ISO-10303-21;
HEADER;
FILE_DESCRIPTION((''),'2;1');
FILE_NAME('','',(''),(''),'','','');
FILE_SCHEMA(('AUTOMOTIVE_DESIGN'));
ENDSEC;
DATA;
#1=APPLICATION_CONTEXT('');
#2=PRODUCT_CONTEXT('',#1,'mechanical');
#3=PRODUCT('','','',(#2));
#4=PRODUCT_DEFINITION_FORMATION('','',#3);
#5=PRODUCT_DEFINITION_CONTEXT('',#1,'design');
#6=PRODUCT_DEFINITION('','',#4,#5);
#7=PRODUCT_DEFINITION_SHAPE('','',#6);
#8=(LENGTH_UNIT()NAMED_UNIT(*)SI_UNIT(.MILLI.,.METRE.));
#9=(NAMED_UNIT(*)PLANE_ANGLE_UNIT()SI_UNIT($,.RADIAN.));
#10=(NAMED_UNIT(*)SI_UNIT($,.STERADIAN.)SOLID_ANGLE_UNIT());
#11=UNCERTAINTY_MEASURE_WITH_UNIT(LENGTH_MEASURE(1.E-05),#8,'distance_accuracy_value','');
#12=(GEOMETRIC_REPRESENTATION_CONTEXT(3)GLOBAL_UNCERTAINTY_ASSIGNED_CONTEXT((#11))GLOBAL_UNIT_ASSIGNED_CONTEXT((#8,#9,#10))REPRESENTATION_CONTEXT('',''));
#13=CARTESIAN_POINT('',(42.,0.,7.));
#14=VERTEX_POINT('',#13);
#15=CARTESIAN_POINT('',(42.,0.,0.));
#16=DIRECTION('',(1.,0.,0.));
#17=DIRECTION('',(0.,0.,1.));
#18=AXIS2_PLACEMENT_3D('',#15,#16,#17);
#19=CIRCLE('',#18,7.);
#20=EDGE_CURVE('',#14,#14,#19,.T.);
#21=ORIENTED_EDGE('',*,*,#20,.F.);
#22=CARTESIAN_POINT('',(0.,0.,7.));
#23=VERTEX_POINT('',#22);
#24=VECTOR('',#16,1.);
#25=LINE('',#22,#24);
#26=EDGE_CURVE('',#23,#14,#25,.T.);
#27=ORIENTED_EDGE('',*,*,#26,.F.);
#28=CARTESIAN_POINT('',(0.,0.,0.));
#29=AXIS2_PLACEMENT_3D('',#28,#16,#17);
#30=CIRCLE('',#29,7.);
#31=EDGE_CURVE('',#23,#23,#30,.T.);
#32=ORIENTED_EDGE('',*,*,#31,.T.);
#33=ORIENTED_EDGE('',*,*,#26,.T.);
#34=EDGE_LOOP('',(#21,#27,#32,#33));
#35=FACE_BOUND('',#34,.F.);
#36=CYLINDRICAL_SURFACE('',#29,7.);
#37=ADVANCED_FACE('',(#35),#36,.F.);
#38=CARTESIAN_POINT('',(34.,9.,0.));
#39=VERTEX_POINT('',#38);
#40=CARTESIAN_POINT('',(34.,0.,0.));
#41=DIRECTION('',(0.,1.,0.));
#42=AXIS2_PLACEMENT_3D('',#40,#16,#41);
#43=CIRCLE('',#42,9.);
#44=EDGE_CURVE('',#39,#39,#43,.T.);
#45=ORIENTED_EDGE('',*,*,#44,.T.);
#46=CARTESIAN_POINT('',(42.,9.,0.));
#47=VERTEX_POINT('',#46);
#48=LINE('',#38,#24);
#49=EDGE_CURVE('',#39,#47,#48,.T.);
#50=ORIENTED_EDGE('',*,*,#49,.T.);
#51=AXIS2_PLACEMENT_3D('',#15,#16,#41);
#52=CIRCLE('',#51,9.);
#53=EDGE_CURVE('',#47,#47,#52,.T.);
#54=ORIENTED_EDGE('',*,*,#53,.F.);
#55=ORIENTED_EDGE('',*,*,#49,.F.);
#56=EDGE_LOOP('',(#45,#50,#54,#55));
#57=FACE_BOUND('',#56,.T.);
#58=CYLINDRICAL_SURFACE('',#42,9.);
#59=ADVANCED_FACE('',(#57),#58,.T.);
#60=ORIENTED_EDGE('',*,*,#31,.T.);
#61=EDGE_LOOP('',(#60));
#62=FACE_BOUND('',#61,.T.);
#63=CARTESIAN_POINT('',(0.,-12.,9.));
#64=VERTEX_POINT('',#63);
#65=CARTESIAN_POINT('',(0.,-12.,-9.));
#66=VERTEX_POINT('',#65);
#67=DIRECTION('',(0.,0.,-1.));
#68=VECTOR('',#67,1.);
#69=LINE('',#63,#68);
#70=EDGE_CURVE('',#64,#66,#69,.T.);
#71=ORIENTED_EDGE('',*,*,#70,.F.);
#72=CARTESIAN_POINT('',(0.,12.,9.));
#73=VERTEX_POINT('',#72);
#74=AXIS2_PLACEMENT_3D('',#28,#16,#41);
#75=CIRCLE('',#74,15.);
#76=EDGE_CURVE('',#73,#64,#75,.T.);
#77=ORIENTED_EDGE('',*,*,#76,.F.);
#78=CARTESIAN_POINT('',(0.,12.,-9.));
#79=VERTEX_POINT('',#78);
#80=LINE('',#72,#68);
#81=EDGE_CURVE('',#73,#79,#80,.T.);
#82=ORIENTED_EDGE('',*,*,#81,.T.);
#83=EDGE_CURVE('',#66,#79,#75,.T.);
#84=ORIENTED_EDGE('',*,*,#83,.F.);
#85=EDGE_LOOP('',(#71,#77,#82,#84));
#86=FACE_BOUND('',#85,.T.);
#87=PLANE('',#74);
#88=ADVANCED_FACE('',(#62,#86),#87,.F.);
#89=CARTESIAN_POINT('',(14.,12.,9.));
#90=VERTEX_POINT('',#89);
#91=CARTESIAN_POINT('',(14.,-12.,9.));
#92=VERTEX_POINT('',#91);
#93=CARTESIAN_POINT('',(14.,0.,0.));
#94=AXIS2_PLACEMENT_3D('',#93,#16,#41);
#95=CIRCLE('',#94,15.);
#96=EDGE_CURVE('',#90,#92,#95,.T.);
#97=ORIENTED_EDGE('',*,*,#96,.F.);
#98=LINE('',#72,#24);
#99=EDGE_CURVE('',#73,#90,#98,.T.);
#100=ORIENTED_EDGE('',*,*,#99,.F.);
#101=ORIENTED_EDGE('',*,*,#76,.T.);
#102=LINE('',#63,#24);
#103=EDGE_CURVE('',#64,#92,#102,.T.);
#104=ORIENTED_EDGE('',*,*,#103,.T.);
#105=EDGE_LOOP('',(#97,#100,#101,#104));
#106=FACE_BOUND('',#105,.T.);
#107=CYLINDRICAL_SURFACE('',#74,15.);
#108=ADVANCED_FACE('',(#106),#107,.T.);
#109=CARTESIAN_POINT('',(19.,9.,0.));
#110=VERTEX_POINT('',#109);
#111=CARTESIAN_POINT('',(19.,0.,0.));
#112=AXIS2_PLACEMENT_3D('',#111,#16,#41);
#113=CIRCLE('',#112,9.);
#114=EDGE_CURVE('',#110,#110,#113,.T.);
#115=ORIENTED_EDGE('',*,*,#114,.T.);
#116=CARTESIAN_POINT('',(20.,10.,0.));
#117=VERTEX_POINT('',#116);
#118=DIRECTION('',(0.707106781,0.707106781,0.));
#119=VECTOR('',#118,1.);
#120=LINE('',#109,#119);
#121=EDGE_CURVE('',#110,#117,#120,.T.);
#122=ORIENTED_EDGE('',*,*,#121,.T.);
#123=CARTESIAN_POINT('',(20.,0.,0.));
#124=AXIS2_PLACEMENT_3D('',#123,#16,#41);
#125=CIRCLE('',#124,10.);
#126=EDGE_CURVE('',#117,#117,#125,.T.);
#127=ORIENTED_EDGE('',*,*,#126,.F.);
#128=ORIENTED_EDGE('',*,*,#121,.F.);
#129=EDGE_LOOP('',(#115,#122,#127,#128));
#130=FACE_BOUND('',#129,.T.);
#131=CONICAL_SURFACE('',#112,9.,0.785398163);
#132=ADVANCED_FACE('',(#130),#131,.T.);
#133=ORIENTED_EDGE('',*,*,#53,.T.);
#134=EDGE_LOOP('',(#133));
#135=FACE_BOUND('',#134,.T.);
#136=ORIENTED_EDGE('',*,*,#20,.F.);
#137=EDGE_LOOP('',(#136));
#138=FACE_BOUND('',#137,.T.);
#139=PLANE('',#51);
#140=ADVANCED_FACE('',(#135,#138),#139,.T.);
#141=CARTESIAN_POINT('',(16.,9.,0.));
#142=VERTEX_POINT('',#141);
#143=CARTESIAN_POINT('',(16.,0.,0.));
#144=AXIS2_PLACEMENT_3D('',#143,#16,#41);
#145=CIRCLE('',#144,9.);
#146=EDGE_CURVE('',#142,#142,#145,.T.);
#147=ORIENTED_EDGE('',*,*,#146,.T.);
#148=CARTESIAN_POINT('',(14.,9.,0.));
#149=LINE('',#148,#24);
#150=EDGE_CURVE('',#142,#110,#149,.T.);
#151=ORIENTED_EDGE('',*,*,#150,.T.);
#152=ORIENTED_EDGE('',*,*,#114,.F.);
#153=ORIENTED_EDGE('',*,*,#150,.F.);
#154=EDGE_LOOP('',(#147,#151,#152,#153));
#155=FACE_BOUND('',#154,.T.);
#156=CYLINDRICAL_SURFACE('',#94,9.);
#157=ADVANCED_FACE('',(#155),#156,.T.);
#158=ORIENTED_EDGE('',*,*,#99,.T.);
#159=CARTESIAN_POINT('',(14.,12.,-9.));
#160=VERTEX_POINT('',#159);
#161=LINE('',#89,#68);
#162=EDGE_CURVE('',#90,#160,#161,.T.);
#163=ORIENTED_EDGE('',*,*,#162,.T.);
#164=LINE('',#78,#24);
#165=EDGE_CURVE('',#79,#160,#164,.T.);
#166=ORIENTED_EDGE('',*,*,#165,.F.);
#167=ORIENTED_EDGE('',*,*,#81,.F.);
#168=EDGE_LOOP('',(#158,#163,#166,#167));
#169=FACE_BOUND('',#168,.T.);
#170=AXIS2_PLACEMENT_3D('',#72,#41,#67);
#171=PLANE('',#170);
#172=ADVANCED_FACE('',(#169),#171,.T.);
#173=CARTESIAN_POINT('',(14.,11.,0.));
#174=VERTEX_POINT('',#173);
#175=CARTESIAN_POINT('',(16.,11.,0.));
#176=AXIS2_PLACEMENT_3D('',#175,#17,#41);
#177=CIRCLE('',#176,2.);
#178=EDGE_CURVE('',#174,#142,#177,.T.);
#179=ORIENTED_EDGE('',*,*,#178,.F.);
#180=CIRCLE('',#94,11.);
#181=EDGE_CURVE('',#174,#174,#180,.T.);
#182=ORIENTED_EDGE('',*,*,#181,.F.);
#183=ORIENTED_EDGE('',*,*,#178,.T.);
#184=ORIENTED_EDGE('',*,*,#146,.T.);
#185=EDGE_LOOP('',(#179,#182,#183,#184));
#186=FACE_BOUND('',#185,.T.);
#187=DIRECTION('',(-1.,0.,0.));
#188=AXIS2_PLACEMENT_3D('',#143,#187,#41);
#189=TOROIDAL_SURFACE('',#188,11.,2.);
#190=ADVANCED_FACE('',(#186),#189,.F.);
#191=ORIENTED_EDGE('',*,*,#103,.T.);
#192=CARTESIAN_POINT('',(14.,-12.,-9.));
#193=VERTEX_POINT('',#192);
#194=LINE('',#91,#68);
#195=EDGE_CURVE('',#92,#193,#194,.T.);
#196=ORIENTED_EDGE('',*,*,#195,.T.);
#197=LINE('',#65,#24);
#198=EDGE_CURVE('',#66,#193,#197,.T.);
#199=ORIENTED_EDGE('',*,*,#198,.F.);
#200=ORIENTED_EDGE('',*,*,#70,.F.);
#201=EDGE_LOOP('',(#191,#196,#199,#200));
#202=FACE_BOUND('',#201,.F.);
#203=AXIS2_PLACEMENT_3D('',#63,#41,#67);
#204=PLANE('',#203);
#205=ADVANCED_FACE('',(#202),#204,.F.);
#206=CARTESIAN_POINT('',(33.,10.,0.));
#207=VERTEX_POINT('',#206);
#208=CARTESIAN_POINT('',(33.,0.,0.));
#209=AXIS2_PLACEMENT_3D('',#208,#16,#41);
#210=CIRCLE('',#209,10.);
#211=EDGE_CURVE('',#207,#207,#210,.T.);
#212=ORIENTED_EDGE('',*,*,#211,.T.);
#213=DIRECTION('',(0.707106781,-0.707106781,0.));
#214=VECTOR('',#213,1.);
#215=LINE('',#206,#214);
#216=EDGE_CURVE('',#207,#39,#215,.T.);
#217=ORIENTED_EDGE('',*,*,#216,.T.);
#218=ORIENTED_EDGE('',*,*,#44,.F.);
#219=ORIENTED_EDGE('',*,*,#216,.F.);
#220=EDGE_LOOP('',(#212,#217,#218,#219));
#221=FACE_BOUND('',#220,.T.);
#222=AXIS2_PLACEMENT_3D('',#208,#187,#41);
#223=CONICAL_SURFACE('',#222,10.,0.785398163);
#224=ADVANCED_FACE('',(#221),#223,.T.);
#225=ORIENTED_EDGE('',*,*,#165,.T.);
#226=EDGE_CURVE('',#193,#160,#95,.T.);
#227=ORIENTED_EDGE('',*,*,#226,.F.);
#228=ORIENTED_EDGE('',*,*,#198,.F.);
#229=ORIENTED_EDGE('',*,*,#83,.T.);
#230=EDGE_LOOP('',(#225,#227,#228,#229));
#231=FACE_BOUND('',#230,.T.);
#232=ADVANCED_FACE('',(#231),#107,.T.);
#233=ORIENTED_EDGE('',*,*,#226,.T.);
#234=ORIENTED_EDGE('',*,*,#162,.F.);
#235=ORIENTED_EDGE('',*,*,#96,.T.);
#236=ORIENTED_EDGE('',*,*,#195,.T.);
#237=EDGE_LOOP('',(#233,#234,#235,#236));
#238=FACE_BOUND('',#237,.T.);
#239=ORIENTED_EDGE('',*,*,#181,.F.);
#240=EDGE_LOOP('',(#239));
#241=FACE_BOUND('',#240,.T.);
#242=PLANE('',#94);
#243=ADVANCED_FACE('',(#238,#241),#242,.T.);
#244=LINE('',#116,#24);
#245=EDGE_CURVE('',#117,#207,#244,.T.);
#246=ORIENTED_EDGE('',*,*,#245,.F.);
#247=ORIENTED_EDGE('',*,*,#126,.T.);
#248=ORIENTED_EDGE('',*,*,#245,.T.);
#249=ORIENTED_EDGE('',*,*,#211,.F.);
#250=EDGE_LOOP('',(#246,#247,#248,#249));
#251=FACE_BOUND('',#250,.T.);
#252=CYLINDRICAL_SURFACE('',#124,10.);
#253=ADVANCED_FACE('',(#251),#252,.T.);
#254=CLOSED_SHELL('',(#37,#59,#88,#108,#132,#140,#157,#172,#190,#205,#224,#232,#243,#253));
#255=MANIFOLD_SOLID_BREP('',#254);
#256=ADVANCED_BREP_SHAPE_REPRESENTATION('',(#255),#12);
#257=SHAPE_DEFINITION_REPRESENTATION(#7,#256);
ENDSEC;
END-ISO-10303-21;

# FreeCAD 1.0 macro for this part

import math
import FreeCAD as App
import Part
import Sketcher
Q = App.Units.Quantity


def edges_at(feature, points):
    """Names of the edges that pass closest to the given points."""
    edges = feature.Shape.Edges
    near = lambda p: min(range(len(edges)), key=lambda i: edges[i].distToShape(Part.Vertex(*p))[0])
    return sorted({f"Edge{near(p) + 1}" for p in points})


def add_polygon(sketch, points):
    """Adds a closed chain of lines whose ends are joined by coincident constraints."""
    first, n = sketch.GeometryCount, len(points)
    for a, b in zip(points, points[1:] + points[:1]):
        sketch.addGeometry(Part.LineSegment(App.Vector(*a, 0), App.Vector(*b, 0)), False)
    for i in range(n):
        sketch.addConstraint(Sketcher.Constraint("Coincident", first + i, 2, first + (i + 1) % n, 1))

doc = App.newDocument("Part")
body = doc.addObject("PartDesign::Body", "Body")

sketch1 = body.newObject("Sketcher::SketchObject", "Sketch")
sketch1.AttachmentSupport = (doc.getObject("XY_Plane"), [""])
sketch1.MapMode = "FlatFace"
add_polygon(sketch1, [(0, 15), (0, 0), (42, 0), (42, 9), (34, 9), (33, 10), (20, 10), (19, 9), (14, 9), (14, 15)])
sketch1.addConstraint(Sketcher.Constraint("Vertical", 0))
sketch1.addConstraint(Sketcher.Constraint("Horizontal", 1))
sketch1.addConstraint(Sketcher.Constraint("Vertical", 2))
sketch1.addConstraint(Sketcher.Constraint("Horizontal", 3))
sketch1.addConstraint(Sketcher.Constraint("Horizontal", 5))
sketch1.addConstraint(Sketcher.Constraint("Horizontal", 7))
sketch1.addConstraint(Sketcher.Constraint("Vertical", 8))
sketch1.addConstraint(Sketcher.Constraint("Horizontal", 9))
sketch1.addConstraint(Sketcher.Constraint("Coincident", 0, 2, -1, 1))
sketch1.addConstraint(Sketcher.Constraint("Perpendicular", 4, 6))
sketch1.addConstraint(Sketcher.Constraint("Horizontal", 3, 2, 6, 2))
sketch1.addConstraint(Sketcher.Constraint("Equal", 4, 6))
sketch1.addConstraint(Sketcher.Constraint("DistanceX", 1, 1, 1, 2, Q("42 mm")))
sketch1.addConstraint(Sketcher.Constraint("DistanceX", 3, 2, 3, 1, Q("8 mm")))
sketch1.addConstraint(Sketcher.Constraint("DistanceX", 7, 2, 7, 1, Q("5 mm")))
sketch1.addConstraint(Sketcher.Constraint("DistanceX", -1, 1, 5, 2, Q("20 mm")))
sketch1.addConstraint(Sketcher.Constraint("DistanceX", 7, 2, 3, 2, Q("20 mm")))
sketch1.addConstraint(Sketcher.Constraint("DistanceY", 5, 2, 8, 2, Q("5 mm")))
sketch1.addConstraint(Sketcher.Constraint("DistanceY", 0, 2, 0, 1, Q("15 mm")))
revolution = body.newObject("PartDesign::Revolution", "Revolution")
revolution.Profile = sketch1
revolution.ReferenceAxis = (sketch1, ["H_Axis"])
revolution.Angle = 360

sketch2 = body.newObject("Sketcher::SketchObject", "Sketch001")
sketch2.AttachmentSupport = (doc.getObject("YZ_Plane"), [""])
sketch2.MapMode = "FlatFace"
sketch2.addGeometry(Part.Circle(App.Vector(0, 0, 0), App.Vector(0, 0, 1), 7), False)
sketch2.addConstraint(Sketcher.Constraint("Coincident", 0, 3, -1, 1))
sketch2.addConstraint(Sketcher.Constraint("Diameter", 0, Q("14 mm")))
doc.recompute()
hole = body.newObject("PartDesign::Hole", "Hole")
hole.Profile = sketch2
hole.ThreadType = "None"
hole.Diameter = 14
hole.DepthType = "Dimension"
hole.Depth = 42
hole.DrillPoint = "Flat"
hole.Reversed = True

sketch3 = body.newObject("Sketcher::SketchObject", "Sketch002")
sketch3.AttachmentSupport = (doc.getObject("YZ_Plane"), [""])
sketch3.MapMode = "FlatFace"
sketch3.addGeometry(Part.LineSegment(App.Vector(12, -9, 0), App.Vector(12, 9, 0)), False)
sketch3.addGeometry(Part.ArcOfCircle(Part.Circle(App.Vector(0, 0, 0), App.Vector(0, 0, 1), 15), math.radians(-37), math.radians(37)), False)
sketch3.addGeometry(Part.ArcOfCircle(Part.Circle(App.Vector(0, 0, 0), App.Vector(0, 0, 1), 15), math.radians(143), math.radians(217)), False)
sketch3.addGeometry(Part.LineSegment(App.Vector(-12, 9, 0), App.Vector(-12, -9, 0)), False)
sketch3.addConstraint(Sketcher.Constraint("Coincident", 0, 1, 1, 1))
sketch3.addConstraint(Sketcher.Constraint("Coincident", 1, 2, 0, 2))
sketch3.addConstraint(Sketcher.Constraint("Coincident", 2, 1, 3, 1))
sketch3.addConstraint(Sketcher.Constraint("Coincident", 3, 2, 2, 2))
sketch3.addConstraint(Sketcher.Constraint("Vertical", 0))
sketch3.addConstraint(Sketcher.Constraint("Vertical", 3))
sketch3.addConstraint(Sketcher.Constraint("Coincident", 1, 3, -1, 1))
sketch3.addConstraint(Sketcher.Constraint("Coincident", 2, 3, -1, 1))
sketch3.addConstraint(Sketcher.Constraint("Equal", 1, 2))
sketch3.addConstraint(Sketcher.Constraint("Horizontal", 1, 2, 2, 1))
sketch3.addConstraint(Sketcher.Constraint("Radius", 1, Q("15 mm")))
sketch3.addConstraint(Sketcher.Constraint("DistanceX", 2, 1, 1, 2, Q("24 mm")))
pocket1 = body.newObject("PartDesign::Pocket", "Pocket")
pocket1.Profile = sketch3
pocket1.Length = 14
pocket1.Reversed = True
doc.recompute()

fillet = body.newObject("PartDesign::Fillet", "Fillet")
fillet.Base = (pocket1, edges_at(pocket1, [(14, -9, 0)]))
fillet.Radius = 2

doc.recompute()
